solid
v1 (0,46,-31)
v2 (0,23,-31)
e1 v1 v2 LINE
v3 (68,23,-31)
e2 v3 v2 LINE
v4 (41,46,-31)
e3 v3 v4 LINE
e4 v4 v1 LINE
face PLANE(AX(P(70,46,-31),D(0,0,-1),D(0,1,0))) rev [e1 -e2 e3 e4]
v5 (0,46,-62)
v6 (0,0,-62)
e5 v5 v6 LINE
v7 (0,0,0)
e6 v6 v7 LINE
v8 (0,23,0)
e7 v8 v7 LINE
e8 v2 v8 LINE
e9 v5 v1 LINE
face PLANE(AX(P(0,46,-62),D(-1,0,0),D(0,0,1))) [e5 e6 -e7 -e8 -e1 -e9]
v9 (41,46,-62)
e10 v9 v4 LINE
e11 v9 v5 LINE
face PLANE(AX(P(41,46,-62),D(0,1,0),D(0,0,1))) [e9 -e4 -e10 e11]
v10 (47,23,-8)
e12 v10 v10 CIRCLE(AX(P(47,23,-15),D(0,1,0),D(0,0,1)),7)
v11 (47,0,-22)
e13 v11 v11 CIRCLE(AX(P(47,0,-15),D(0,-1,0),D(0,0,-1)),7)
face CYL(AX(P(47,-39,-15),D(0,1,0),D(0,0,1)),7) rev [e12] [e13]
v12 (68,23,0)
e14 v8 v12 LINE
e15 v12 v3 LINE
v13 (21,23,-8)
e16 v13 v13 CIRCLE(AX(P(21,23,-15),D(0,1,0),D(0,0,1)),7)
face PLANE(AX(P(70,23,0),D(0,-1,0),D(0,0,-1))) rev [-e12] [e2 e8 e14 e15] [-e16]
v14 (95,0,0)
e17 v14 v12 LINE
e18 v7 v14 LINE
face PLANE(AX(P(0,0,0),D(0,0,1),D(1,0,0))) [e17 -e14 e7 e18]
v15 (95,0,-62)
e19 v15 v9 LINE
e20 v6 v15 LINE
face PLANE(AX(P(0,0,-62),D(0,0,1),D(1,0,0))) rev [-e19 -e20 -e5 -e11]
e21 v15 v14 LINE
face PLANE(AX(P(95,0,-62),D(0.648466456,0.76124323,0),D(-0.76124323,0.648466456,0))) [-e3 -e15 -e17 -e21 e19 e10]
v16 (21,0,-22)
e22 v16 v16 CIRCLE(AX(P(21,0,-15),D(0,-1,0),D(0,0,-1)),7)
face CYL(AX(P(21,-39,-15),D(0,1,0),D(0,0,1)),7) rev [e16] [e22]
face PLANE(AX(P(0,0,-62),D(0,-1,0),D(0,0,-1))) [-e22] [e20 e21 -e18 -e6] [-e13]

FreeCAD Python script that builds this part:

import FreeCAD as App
import Part
import Sketcher

V = App.Vector
Q = App.Units.Quantity

doc = App.newDocument("Part")
body = doc.addObject("PartDesign::Body", "Body")

sketch1 = body.newObject("Sketcher::SketchObject", "Sketch")
sketch1.AttachmentSupport = (doc.getObject("XY_Plane"), [""])
sketch1.MapMode = "FlatFace"
sketch1.addGeometry(Part.LineSegment(V(0, 0, 0), V(95, 0, 0)), False)
sketch1.addGeometry(Part.LineSegment(V(95, 0, 0), V(41, 46, 0)), False)
sketch1.addGeometry(Part.LineSegment(V(41, 46, 0), V(0, 46, 0)), False)
sketch1.addGeometry(Part.LineSegment(V(0, 46, 0), V(0, 0, 0)), False)
sketch1.addConstraint(Sketcher.Constraint("Coincident", 0, 2, 1, 1))
sketch1.addConstraint(Sketcher.Constraint("Coincident", 1, 2, 2, 1))
sketch1.addConstraint(Sketcher.Constraint("Coincident", 2, 2, 3, 1))
sketch1.addConstraint(Sketcher.Constraint("Coincident", 3, 2, 0, 1))
sketch1.addConstraint(Sketcher.Constraint("Horizontal", 0))
sketch1.addConstraint(Sketcher.Constraint("Horizontal", 2))
sketch1.addConstraint(Sketcher.Constraint("Vertical", 3))
sketch1.addConstraint(Sketcher.Constraint("Coincident", 3, 2, -1, 1))
sketch1.addConstraint(Sketcher.Constraint("DistanceX", 0, 1, 0, 2, Q("95 mm")))
sketch1.addConstraint(Sketcher.Constraint("DistanceX", 2, 2, 2, 1, Q("41 mm")))
sketch1.addConstraint(Sketcher.Constraint("DistanceY", 3, 2, 3, 1, Q("46 mm")))
pad1 = body.newObject("PartDesign::Pad", "Pad")
pad1.Profile = sketch1
pad1.Length = 62
pad1.Reversed = True

sketch2 = body.newObject("Sketcher::SketchObject", "Sketch001")
sketch2.AttachmentSupport = (doc.getObject("YZ_Plane"), [""])
sketch2.MapMode = "FlatFace"
sketch2.addGeometry(Part.LineSegment(V(46, -31, 0), V(23, -31, 0)), False)
sketch2.addGeometry(Part.LineSegment(V(23, -31, 0), V(23, 0, 0)), False)
sketch2.addGeometry(Part.LineSegment(V(23, 0, 0), V(46, 0, 0)), False)
sketch2.addGeometry(Part.LineSegment(V(46, 0, 0), V(46, -31, 0)), False)
sketch2.addConstraint(Sketcher.Constraint("Coincident", 0, 2, 1, 1))
sketch2.addConstraint(Sketcher.Constraint("Coincident", 1, 2, 2, 1))
sketch2.addConstraint(Sketcher.Constraint("Coincident", 2, 2, 3, 1))
sketch2.addConstraint(Sketcher.Constraint("Coincident", 3, 2, 0, 1))
sketch2.addConstraint(Sketcher.Constraint("Horizontal", 0))
sketch2.addConstraint(Sketcher.Constraint("Vertical", 1))
sketch2.addConstraint(Sketcher.Constraint("Horizontal", 2))
sketch2.addConstraint(Sketcher.Constraint("Vertical", 3))
sketch2.addConstraint(Sketcher.Constraint("PointOnObject", 1, 2, -1))
sketch2.addConstraint(Sketcher.Constraint("DistanceX", 0, 2, 0, 1, Q("23 mm")))
sketch2.addConstraint(Sketcher.Constraint("DistanceY", 1, 1, 1, 2, Q("31 mm")))
sketch2.addConstraint(Sketcher.Constraint("DistanceX", -1, 1, 0, 2, Q("23 mm")))
pocket1 = body.newObject("PartDesign::Pocket", "Pocket")
pocket1.Profile = sketch2
pocket1.Length = 70
pocket1.Reversed = True

sketch3 = body.newObject("Sketcher::SketchObject", "Sketch002")
sketch3.AttachmentSupport = (doc.getObject("XZ_Plane"), [""])
sketch3.MapMode = "FlatFace"
sketch3.AttachmentOffset = App.Placement(V(0, 0, -23), App.Rotation())
sketch3.addGeometry(Part.Circle(V(21, -15, 0), V(0, 0, 1), 7), False)
sketch3.addGeometry(Part.Circle(V(47, -15, 0), V(0, 0, 1), 7), False)
sketch3.addConstraint(Sketcher.Constraint("Equal", 0, 1))
sketch3.addConstraint(Sketcher.Constraint("Horizontal", 0, 3, 1, 3))
sketch3.addConstraint(Sketcher.Constraint("Diameter", 0, Q("14 mm")))
sketch3.addConstraint(Sketcher.Constraint("DistanceX", -1, 1, 0, 3, Q("21 mm")))
sketch3.addConstraint(Sketcher.Constraint("DistanceY", 0, 3, -1, 1, Q("15 mm")))
sketch3.addConstraint(Sketcher.Constraint("DistanceX", -1, 1, 1, 3, Q("47 mm")))
pocket2 = body.newObject("PartDesign::Pocket", "Pocket001")
pocket2.Profile = sketch3
pocket2.Length = 62
pocket2.Reversed = True

doc.recompute()
